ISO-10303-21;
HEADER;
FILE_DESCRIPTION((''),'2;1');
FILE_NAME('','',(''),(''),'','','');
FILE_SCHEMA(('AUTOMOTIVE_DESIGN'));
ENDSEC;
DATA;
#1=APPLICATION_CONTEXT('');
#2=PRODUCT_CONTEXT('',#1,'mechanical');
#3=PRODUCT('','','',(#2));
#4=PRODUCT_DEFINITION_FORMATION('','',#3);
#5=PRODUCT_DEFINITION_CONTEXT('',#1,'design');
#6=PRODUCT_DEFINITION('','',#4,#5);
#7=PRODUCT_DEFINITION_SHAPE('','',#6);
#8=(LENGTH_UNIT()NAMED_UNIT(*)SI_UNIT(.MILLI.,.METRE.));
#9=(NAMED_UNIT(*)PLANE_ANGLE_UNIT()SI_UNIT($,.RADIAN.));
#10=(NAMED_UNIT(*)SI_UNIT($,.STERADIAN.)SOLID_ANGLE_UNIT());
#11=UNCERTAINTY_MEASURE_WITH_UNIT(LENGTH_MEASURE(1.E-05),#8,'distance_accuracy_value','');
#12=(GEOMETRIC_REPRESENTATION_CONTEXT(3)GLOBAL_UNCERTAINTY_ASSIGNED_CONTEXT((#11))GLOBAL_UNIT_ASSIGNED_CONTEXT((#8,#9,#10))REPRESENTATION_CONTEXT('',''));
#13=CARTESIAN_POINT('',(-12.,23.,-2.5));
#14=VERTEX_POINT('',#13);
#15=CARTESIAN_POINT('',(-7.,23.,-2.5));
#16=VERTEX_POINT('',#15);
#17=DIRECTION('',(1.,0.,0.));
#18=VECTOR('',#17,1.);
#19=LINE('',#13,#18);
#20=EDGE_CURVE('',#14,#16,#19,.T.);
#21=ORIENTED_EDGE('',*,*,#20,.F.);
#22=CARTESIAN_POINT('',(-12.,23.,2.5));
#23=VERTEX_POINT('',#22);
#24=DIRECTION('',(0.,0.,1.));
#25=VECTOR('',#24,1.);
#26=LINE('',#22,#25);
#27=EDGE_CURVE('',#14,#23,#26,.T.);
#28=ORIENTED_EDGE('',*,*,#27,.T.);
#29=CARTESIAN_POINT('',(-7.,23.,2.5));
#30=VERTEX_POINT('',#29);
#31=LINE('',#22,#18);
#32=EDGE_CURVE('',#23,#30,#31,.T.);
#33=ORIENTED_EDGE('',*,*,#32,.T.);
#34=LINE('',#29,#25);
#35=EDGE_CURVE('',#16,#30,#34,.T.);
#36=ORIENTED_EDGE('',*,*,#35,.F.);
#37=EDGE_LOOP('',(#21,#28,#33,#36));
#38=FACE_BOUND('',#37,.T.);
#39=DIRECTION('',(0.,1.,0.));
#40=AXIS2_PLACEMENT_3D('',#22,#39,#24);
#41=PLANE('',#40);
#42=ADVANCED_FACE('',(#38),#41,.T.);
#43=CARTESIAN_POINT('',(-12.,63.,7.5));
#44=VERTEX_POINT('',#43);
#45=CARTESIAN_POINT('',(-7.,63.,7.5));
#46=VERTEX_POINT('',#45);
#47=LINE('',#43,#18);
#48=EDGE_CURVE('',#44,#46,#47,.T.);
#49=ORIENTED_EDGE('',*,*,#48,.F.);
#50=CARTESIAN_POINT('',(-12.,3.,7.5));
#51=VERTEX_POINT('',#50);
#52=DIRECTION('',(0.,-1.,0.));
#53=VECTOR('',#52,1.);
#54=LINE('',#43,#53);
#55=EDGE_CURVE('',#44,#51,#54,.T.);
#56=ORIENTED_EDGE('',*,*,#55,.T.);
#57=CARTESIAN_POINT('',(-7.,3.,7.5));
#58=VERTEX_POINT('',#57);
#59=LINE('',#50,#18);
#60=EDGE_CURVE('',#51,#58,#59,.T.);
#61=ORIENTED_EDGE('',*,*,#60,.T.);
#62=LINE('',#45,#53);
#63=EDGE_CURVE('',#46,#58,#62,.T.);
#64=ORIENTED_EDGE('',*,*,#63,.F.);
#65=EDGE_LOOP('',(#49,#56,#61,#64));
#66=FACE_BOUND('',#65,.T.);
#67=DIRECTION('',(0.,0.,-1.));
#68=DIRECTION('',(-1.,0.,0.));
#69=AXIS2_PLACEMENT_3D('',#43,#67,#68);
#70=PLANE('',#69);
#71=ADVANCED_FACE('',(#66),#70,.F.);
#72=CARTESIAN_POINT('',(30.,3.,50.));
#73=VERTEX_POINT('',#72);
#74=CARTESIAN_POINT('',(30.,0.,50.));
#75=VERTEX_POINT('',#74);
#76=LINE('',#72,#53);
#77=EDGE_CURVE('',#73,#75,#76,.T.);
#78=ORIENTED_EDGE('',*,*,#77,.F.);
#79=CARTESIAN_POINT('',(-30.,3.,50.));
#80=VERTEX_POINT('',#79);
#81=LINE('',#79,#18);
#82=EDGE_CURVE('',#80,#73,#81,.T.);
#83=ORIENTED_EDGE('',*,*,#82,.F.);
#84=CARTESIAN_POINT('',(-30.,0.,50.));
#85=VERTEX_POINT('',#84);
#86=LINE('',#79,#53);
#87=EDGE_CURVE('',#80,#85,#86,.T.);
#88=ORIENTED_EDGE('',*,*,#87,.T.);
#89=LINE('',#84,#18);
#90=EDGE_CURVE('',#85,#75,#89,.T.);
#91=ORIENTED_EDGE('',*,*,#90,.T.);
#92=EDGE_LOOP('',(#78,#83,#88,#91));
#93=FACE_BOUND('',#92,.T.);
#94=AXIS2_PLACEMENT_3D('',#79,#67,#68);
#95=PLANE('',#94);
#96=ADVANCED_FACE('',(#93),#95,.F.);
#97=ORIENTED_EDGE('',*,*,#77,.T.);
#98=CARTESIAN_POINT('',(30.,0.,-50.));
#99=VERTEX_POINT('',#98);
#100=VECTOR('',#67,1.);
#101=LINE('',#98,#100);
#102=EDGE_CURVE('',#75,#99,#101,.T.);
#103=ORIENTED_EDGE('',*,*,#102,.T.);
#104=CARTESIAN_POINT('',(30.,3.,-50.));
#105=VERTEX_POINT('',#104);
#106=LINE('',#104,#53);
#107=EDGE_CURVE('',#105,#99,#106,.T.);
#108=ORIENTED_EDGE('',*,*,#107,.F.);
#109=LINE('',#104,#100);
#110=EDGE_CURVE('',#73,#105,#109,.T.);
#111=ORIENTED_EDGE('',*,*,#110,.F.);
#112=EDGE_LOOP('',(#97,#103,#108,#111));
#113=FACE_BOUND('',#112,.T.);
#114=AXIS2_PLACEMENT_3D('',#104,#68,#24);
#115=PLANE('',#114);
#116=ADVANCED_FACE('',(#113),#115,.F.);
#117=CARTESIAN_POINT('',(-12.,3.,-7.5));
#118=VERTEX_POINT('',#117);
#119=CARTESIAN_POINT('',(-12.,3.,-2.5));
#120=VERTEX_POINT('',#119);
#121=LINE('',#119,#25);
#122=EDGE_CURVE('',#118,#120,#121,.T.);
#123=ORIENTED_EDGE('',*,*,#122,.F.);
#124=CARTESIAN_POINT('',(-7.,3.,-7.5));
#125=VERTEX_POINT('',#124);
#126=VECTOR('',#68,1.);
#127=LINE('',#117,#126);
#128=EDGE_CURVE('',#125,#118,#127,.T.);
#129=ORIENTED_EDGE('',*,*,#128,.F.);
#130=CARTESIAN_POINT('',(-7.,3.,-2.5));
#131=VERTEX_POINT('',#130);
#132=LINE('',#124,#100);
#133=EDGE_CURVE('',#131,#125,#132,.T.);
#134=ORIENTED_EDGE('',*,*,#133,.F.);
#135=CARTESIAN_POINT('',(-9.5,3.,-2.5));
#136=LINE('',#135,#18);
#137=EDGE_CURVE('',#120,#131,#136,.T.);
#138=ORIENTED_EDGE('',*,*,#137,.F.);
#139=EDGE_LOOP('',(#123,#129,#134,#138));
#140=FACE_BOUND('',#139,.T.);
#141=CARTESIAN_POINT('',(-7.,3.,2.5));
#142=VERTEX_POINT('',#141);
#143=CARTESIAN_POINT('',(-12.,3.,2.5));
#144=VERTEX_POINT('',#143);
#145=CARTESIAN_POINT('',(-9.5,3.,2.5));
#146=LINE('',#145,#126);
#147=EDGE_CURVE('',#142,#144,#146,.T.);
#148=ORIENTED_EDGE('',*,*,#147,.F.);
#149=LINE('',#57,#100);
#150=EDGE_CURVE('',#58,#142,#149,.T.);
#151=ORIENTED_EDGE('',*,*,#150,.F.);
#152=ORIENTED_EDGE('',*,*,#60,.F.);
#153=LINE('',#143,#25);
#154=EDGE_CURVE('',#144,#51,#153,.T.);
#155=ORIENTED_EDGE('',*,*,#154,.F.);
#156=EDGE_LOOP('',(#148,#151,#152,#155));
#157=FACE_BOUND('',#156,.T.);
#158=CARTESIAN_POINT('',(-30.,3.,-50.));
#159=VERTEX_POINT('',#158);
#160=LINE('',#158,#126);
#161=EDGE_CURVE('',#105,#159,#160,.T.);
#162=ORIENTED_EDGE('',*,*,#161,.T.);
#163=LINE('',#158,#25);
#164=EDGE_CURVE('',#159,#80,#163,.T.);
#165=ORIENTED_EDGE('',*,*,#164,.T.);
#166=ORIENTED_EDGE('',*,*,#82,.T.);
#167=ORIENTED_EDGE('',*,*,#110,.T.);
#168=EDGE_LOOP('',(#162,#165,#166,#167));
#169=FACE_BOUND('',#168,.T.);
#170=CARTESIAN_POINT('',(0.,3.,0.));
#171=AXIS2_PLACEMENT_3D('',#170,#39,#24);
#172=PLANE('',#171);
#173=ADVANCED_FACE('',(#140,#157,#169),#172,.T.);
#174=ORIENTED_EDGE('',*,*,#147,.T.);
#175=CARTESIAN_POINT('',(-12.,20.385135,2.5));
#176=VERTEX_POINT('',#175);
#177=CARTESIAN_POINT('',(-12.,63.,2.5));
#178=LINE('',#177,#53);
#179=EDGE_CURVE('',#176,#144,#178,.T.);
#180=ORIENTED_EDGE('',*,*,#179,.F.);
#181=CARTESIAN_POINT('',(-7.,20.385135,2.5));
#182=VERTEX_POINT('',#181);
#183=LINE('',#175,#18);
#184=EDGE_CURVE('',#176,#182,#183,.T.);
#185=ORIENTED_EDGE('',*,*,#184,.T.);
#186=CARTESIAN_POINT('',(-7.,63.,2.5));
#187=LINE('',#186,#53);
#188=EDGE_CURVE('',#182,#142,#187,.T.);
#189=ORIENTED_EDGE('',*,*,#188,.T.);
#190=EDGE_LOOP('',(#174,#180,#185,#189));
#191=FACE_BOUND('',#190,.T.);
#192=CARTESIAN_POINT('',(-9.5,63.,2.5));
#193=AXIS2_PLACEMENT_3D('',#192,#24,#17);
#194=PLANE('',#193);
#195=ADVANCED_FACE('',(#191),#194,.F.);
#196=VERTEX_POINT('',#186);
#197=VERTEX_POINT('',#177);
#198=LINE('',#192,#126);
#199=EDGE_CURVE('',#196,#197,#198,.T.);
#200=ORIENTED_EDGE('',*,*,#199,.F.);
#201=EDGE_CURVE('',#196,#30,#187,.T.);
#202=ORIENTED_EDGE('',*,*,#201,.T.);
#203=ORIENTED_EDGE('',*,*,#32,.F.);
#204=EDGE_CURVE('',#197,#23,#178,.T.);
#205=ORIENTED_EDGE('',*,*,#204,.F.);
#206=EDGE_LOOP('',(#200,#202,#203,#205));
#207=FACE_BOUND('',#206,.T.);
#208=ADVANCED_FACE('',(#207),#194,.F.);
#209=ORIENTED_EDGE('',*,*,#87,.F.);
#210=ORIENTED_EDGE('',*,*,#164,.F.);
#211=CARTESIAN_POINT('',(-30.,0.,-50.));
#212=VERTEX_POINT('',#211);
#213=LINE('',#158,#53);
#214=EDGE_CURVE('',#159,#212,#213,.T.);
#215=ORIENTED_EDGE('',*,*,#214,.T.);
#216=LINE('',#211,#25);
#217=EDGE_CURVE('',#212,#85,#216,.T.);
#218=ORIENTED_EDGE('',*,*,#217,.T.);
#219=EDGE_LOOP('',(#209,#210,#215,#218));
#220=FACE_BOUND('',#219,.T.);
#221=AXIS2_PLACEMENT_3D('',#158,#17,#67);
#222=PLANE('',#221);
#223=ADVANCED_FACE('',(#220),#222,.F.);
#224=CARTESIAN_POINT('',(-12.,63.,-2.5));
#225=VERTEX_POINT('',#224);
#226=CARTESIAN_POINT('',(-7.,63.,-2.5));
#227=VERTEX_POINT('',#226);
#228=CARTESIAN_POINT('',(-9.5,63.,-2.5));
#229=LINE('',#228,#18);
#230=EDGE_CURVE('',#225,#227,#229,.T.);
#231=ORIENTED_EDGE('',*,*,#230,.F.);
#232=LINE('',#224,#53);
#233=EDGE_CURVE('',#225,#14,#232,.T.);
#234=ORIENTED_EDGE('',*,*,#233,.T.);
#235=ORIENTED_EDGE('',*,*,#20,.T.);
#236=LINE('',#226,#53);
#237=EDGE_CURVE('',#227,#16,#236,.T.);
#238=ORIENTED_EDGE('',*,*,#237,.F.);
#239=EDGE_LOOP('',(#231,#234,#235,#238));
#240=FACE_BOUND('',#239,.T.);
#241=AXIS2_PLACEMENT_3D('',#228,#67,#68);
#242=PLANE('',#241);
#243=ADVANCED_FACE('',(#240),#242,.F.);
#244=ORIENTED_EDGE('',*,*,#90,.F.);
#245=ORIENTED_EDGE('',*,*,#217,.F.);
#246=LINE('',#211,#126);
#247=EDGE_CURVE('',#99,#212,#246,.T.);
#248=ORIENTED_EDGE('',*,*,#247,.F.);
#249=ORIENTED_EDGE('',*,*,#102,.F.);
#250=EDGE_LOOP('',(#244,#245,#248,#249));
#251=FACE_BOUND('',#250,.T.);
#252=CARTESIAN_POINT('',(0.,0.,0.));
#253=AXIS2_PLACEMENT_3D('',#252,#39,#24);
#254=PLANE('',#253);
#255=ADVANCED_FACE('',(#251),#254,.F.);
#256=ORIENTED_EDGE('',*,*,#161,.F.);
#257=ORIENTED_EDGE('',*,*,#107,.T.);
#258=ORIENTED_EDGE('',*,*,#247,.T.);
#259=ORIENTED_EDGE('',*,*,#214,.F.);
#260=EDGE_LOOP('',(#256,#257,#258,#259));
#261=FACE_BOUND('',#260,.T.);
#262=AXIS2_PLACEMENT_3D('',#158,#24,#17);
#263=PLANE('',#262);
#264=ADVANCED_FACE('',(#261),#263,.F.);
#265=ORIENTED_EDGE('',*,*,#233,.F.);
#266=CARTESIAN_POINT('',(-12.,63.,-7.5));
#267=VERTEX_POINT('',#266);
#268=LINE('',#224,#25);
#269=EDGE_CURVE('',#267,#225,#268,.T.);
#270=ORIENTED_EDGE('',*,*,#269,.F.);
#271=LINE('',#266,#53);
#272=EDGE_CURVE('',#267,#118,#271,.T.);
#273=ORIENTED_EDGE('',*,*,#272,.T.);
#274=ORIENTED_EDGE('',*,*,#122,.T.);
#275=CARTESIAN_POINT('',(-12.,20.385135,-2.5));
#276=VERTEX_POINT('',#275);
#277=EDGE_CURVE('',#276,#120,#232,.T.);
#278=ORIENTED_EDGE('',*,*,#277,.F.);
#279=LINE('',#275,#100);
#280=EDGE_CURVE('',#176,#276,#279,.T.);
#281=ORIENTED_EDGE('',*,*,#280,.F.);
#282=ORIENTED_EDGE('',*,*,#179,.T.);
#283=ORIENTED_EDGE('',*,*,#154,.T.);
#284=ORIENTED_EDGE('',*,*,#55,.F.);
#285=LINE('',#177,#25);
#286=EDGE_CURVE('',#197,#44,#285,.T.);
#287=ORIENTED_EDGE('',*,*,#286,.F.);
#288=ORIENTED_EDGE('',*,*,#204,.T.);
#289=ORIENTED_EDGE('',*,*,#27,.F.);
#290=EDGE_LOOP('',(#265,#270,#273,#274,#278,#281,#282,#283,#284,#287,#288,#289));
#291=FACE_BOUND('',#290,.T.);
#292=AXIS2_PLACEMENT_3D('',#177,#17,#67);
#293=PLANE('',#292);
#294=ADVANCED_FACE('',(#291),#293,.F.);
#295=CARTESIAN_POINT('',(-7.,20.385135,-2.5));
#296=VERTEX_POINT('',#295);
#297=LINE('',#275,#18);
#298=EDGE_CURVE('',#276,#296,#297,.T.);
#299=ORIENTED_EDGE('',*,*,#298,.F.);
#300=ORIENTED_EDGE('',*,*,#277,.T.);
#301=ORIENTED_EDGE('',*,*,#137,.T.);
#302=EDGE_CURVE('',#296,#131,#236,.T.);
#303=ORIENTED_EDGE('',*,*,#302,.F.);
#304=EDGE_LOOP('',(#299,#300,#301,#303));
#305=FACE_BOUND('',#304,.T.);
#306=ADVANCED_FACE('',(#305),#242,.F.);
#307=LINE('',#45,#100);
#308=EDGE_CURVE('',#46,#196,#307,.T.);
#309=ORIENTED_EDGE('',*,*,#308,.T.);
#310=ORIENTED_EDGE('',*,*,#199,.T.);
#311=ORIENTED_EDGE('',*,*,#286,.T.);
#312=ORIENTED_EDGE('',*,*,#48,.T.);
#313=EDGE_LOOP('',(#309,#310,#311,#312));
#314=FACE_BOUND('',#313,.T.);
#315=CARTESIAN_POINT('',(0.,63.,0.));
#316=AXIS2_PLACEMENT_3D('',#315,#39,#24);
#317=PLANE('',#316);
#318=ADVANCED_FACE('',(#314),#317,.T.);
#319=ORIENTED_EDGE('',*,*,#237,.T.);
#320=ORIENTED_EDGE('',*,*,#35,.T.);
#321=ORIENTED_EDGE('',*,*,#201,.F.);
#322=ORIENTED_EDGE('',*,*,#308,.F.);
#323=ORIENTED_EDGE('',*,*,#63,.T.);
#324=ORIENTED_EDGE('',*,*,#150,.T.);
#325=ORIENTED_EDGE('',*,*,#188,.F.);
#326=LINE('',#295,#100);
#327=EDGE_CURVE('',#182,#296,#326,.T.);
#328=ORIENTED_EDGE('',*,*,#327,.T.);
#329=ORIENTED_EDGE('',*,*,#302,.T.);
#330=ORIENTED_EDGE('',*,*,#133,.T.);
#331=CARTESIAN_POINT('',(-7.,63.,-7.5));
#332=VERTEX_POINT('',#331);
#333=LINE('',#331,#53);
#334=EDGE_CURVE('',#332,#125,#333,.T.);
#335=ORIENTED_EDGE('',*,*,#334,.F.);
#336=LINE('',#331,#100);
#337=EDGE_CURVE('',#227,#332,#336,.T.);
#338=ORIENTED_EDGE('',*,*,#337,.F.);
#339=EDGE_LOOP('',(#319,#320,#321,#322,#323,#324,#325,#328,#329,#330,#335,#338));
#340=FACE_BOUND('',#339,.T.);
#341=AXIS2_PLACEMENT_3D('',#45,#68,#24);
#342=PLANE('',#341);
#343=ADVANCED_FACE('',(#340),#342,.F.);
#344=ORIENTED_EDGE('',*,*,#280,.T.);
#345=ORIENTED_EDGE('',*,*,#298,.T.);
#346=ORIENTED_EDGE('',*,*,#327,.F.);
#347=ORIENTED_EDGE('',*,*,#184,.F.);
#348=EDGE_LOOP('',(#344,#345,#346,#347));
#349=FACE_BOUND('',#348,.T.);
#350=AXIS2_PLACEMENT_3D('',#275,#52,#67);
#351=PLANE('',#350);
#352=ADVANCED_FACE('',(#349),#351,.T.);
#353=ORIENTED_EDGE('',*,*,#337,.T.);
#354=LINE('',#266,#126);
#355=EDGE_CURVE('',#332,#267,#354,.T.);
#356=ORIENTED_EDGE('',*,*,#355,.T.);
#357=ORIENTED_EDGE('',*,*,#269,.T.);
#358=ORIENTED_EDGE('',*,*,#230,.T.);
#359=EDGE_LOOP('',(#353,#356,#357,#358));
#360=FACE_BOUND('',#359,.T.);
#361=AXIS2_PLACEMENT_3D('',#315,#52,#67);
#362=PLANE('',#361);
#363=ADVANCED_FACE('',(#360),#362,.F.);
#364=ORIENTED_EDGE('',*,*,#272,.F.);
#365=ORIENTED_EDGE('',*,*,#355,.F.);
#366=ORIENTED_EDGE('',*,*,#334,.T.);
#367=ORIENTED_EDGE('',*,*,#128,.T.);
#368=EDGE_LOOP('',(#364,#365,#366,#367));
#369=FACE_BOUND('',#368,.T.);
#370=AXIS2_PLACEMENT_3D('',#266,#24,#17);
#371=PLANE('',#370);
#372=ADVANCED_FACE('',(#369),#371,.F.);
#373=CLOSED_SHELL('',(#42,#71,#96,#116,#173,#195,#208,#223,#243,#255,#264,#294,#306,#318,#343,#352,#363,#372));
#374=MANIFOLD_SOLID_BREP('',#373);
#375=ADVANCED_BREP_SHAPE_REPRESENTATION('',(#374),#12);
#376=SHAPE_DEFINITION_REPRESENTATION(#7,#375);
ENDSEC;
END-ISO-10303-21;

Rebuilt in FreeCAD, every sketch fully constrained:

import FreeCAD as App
import Part
import Sketcher
Q = App.Units.Quantity

doc = App.newDocument("Part")
body = doc.addObject("PartDesign::Body", "Body")

sketch1 = body.newObject("Sketcher::SketchObject", "Sketch")
sketch1.AttachmentSupport = (doc.getObject("XZ_Plane"), [""])
sketch1.MapMode = "FlatFace"
sketch1.addGeometry(Part.LineSegment(App.Vector(-30, -50, 0), App.Vector(-30, 50, 0)), False)
sketch1.addGeometry(Part.LineSegment(App.Vector(-30, 50, 0), App.Vector(30, 50, 0)), False)
sketch1.addGeometry(Part.LineSegment(App.Vector(30, 50, 0), App.Vector(30, -50, 0)), False)
sketch1.addGeometry(Part.LineSegment(App.Vector(30, -50, 0), App.Vector(-30, -50, 0)), False)
sketch1.addConstraint(Sketcher.Constraint("Coincident", 0, 2, 1, 1))
sketch1.addConstraint(Sketcher.Constraint("Coincident", 1, 2, 2, 1))
sketch1.addConstraint(Sketcher.Constraint("Coincident", 2, 2, 3, 1))
sketch1.addConstraint(Sketcher.Constraint("Coincident", 3, 2, 0, 1))
sketch1.addConstraint(Sketcher.Constraint("Vertical", 0))
sketch1.addConstraint(Sketcher.Constraint("Horizontal", 1))
sketch1.addConstraint(Sketcher.Constraint("Vertical", 2))
sketch1.addConstraint(Sketcher.Constraint("Horizontal", 3))
sketch1.addConstraint(Sketcher.Constraint("Symmetric", 0, 2, 2, 2, -1, 1))
sketch1.addConstraint(Sketcher.Constraint("DistanceX", 1, 1, 1, 2, Q("60 mm")))
sketch1.addConstraint(Sketcher.Constraint("DistanceY", 0, 1, 0, 2, Q("100 mm")))
pad1 = body.newObject("PartDesign::Pad", "Pad")
pad1.Profile = sketch1
pad1.Length = 3
pad1.Reversed = True

sketch2 = body.newObject("Sketcher::SketchObject", "Sketch001")
sketch2.AttachmentSupport = (doc.getObject("XZ_Plane"), [""])
sketch2.MapMode = "FlatFace"
sketch2.AttachmentOffset = App.Placement(App.Vector(0, 0, -3), App.Rotation())
sketch2.addGeometry(Part.LineSegment(App.Vector(-7, -2, 0), App.Vector(-7, -8, 0)), False)
sketch2.addGeometry(Part.LineSegment(App.Vector(-7, -8, 0), App.Vector(-12, -8, 0)), False)
sketch2.addGeometry(Part.LineSegment(App.Vector(-12, -8, 0), App.Vector(-12, -2, 0)), False)
sketch2.addGeometry(Part.LineSegment(App.Vector(-12, -2, 0), App.Vector(-7, -2, 0)), False)
sketch2.addGeometry(Part.LineSegment(App.Vector(-7, 2, 0), App.Vector(-12, 2, 0)), False)
sketch2.addGeometry(Part.LineSegment(App.Vector(-12, 2, 0), App.Vector(-12, 8, 0)), False)
sketch2.addGeometry(Part.LineSegment(App.Vector(-12, 8, 0), App.Vector(-7, 8, 0)), False)
sketch2.addGeometry(Part.LineSegment(App.Vector(-7, 8, 0), App.Vector(-7, 2, 0)), False)
sketch2.addConstraint(Sketcher.Constraint("Coincident", 0, 2, 1, 1))
sketch2.addConstraint(Sketcher.Constraint("Coincident", 1, 2, 2, 1))
sketch2.addConstraint(Sketcher.Constraint("Coincident", 2, 2, 3, 1))
sketch2.addConstraint(Sketcher.Constraint("Coincident", 3, 2, 0, 1))
sketch2.addConstraint(Sketcher.Constraint("Coincident", 4, 2, 5, 1))
sketch2.addConstraint(Sketcher.Constraint("Coincident", 5, 2, 6, 1))
sketch2.addConstraint(Sketcher.Constraint("Coincident", 6, 2, 7, 1))
sketch2.addConstraint(Sketcher.Constraint("Coincident", 7, 2, 4, 1))
sketch2.addConstraint(Sketcher.Constraint("Vertical", 0))
sketch2.addConstraint(Sketcher.Constraint("Horizontal", 1))
sketch2.addConstraint(Sketcher.Constraint("Vertical", 2))
sketch2.addConstraint(Sketcher.Constraint("Horizontal", 3))
sketch2.addConstraint(Sketcher.Constraint("Horizontal", 4))
sketch2.addConstraint(Sketcher.Constraint("Vertical", 5))
sketch2.addConstraint(Sketcher.Constraint("Horizontal", 6))
sketch2.addConstraint(Sketcher.Constraint("Vertical", 7))
sketch2.addConstraint(Sketcher.Constraint("Symmetric", 2, 2, 4, 2, -1))
sketch2.addConstraint(Sketcher.Constraint("Symmetric", 0, 2, 6, 2, -1))
sketch2.addConstraint(Sketcher.Constraint("Equal", 6, 0))
sketch2.addConstraint(Sketcher.Constraint("DistanceX", 1, 2, 1, 1, Q("5 mm")))
sketch2.addConstraint(Sketcher.Constraint("DistanceX", 0, 2, -1, 1, Q("7 mm")))
sketch2.addConstraint(Sketcher.Constraint("DistanceY", 2, 2, 4, 2, Q("5 mm")))
pad2 = body.newObject("PartDesign::Pad", "Pad001")
pad2.Profile = sketch2
pad2.Length = 60
pad2.Reversed = True

sketch3 = body.newObject("Sketcher::SketchObject", "Sketch002")
sketch3.AttachmentSupport = (doc.getObject("YZ_Plane"), [""])
sketch3.MapMode = "FlatFace"
sketch3.AttachmentOffset = App.Placement(App.Vector(0, 0, -12), App.Rotation())
sketch3.addGeometry(Part.LineSegment(App.Vector(23, 2.5, 0), App.Vector(20.4, 2.5, 0)), False)
sketch3.addGeometry(Part.LineSegment(App.Vector(20.4, 2.5, 0), App.Vector(20.4, -2.5, 0)), False)
sketch3.addGeometry(Part.LineSegment(App.Vector(20.4, -2.5, 0), App.Vector(23, -2.5, 0)), False)
sketch3.addGeometry(Part.LineSegment(App.Vector(23, -2.5, 0), App.Vector(23, 2.5, 0)), False)
sketch3.addConstraint(Sketcher.Constraint("Coincident", 0, 2, 1, 1))
sketch3.addConstraint(Sketcher.Constraint("Coincident", 1, 2, 2, 1))
sketch3.addConstraint(Sketcher.Constraint("Coincident", 2, 2, 3, 1))
sketch3.addConstraint(Sketcher.Constraint("Coincident", 3, 2, 0, 1))
sketch3.addConstraint(Sketcher.Constraint("Horizontal", 0))
sketch3.addConstraint(Sketcher.Constraint("Vertical", 1))
sketch3.addConstraint(Sketcher.Constraint("Horizontal", 2))
sketch3.addConstraint(Sketcher.Constraint("Vertical", 3))
sketch3.addConstraint(Sketcher.Constraint("DistanceY", 1, 2, 1, 1, Q("5 mm")))
sketch3.addConstraint(Sketcher.Constraint("DistanceX", -1, 1, 2, 2, Q("23 mm")))
sketch3.addConstraint(Sketcher.Constraint("DistanceY", -1, 1, 0, 2, Q("2.5 mm")))
sketch3.addConstraint(Sketcher.Constraint("DistanceX", 0, 2, 0, 1, Q("2.614865 mm")))
pad3 = body.newObject("PartDesign::Pad", "Pad002")
pad3.Profile = sketch3
pad3.Length = 5

doc.recompute()
